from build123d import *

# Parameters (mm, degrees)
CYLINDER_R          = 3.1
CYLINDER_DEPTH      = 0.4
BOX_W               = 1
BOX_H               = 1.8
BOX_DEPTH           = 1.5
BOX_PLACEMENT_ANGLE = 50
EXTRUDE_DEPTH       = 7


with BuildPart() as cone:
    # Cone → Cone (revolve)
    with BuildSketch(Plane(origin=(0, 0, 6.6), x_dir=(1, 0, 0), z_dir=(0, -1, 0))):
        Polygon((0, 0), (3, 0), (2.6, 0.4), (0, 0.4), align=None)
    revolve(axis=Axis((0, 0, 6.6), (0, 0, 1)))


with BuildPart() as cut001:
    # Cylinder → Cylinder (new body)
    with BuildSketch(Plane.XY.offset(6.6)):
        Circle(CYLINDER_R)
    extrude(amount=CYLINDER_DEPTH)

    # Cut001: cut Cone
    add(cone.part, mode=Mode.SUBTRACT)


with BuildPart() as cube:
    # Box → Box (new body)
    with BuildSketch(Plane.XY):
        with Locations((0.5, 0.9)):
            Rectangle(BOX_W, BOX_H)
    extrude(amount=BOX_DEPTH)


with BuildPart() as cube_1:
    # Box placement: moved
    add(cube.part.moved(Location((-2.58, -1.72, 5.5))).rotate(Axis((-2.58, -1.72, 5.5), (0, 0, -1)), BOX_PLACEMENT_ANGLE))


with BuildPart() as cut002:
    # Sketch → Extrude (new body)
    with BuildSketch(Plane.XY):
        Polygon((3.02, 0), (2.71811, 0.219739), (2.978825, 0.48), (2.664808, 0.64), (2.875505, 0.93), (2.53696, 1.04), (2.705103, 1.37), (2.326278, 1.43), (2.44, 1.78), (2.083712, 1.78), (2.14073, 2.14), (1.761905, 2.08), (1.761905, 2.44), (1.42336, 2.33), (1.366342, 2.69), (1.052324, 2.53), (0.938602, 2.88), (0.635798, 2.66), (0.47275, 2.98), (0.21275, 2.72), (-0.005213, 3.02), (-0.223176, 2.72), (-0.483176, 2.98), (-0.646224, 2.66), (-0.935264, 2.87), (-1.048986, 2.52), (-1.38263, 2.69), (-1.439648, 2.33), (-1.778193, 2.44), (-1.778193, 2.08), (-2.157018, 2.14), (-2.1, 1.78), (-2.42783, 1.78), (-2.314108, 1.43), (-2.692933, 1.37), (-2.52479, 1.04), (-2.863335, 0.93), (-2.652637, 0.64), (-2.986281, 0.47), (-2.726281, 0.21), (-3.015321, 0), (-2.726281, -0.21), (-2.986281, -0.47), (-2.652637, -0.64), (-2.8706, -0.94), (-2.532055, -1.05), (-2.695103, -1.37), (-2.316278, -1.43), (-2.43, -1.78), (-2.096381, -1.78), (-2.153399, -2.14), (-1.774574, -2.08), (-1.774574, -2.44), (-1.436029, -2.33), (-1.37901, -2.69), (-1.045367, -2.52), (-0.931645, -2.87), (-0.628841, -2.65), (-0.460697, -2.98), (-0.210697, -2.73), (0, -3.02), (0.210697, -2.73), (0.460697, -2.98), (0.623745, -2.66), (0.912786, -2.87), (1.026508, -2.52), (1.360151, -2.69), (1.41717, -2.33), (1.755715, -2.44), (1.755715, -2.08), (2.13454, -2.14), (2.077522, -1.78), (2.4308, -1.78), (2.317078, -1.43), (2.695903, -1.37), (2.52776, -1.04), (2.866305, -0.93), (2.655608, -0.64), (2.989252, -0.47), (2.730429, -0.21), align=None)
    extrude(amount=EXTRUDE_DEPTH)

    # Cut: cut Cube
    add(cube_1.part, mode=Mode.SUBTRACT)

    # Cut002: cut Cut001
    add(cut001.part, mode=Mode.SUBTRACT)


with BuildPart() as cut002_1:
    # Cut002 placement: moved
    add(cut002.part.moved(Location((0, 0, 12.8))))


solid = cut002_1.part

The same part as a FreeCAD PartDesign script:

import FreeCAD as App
import Part
import Sketcher

V = App.Vector
Q = App.Units.Quantity


def add_polygon(sketch, points):
    """Adds a closed chain of lines whose ends are joined by coincident constraints."""
    first, n = sketch.GeometryCount, len(points)
    for a, b in zip(points, points[1:] + points[:1]):
        sketch.addGeometry(Part.LineSegment(App.Vector(*a, 0), App.Vector(*b, 0)), False)
    for i in range(n):
        sketch.addConstraint(Sketcher.Constraint("Coincident", first + i, 2, first + (i + 1) % n, 1))

doc = App.newDocument("Part")
body = doc.addObject("PartDesign::Body", "Body")

sketch1 = doc.addObject("Sketcher::SketchObject", "Sketch")
body.addObject(sketch1)
sketch1.AttachmentSupport = (doc.XZ_Plane, [""])
sketch1.MapMode = "FlatFace"
add_polygon(sketch1, [(0, 6.6), (3, 6.6), (2.6, 7), (0, 7)])
sketch1.addConstraint([
    Sketcher.Constraint("Horizontal", 0),
    Sketcher.Constraint("Horizontal", 2),
    Sketcher.Constraint("Vertical", 3),
    Sketcher.Constraint("PointOnObject", 2, 2, -2),
    Sketcher.Constraint("DistanceX", 0, 1, 0, 2, 3.0),
    Sketcher.Constraint("Angle", 1, Q("135 deg")),
    Sketcher.Constraint("DistanceX", 2, 2, 2, 1, 2.6),
    Sketcher.Constraint("DistanceY", -1, 1, 1, 2, 7.0),
])
revolution = doc.addObject("PartDesign::Revolution", "Revolution")
body.addObject(revolution)
revolution.Profile = sketch1
revolution.ReferenceAxis = (sketch1, ["V_Axis"])
revolution.Angle = 360
body2 = doc.addObject("PartDesign::Body", "Body001")

sketch2 = doc.addObject("Sketcher::SketchObject", "Sketch001")
body2.addObject(sketch2)
sketch2.AttachmentSupport = (doc.getObject("XY_Plane001"), [""])
sketch2.MapMode = "FlatFace"
sketch2.AttachmentOffset = App.Placement(V(0, 0, 6.6), App.Rotation())
sketch2.addGeometry(Part.Circle(V(0, 0, 0), V(0, 0, 1), 3.1), False)
sketch2.addConstraint([
    Sketcher.Constraint("Coincident", 0, 3, -1, 1),
    Sketcher.Constraint("Diameter", 0, 6.2),
])
pad1 = doc.addObject("PartDesign::Pad", "Pad")
body2.addObject(pad1)
pad1.Profile = sketch2
pad1.Length = 0.4
doc.recompute()

boolean = doc.addObject("PartDesign::Boolean", "Boolean")
body2.addObject(boolean)
boolean.Type = "Cut"
boolean.addObjects([body])
body3 = doc.addObject("PartDesign::Body", "Body002")

sketch3 = doc.addObject("Sketcher::SketchObject", "Sketch002")
body3.addObject(sketch3)
sketch3.AttachmentSupport = (doc.getObject("XY_Plane002"), [""])
sketch3.MapMode = "FlatFace"
add_polygon(sketch3, [(0, 1.8), (0, 0), (1, 0), (1, 1.8)])
sketch3.addConstraint([
    Sketcher.Constraint("Vertical", 0),
    Sketcher.Constraint("Horizontal", 1),
    Sketcher.Constraint("Vertical", 2),
    Sketcher.Constraint("Horizontal", 3),
    Sketcher.Constraint("Coincident", 0, 2, -1, 1),
    Sketcher.Constraint("DistanceX", 1, 1, 1, 2, 1.0),
    Sketcher.Constraint("DistanceY", 0, 2, 0, 1, 1.8),
])
pad2 = doc.addObject("PartDesign::Pad", "Pad001")
body3.addObject(pad2)
pad2.Profile = sketch3
pad2.Length = 1.5
body4 = doc.addObject("PartDesign::Body", "Body003")
doc.recompute()

body3.Placement = App.Placement(V(-2.58, -1.72, 5.5), App.Rotation(V(0, 0, -1), 50))
boolean2 = doc.addObject("PartDesign::Boolean", "Boolean001")
body4.addObject(boolean2)
boolean2.Type = "Fuse"
boolean2.addObjects([body3])
body5 = doc.addObject("PartDesign::Body", "Body004")

sketch4 = doc.addObject("Sketcher::SketchObject", "Sketch003")
body5.addObject(sketch4)
sketch4.AttachmentSupport = (doc.getObject("XY_Plane004"), [""])
sketch4.MapMode = "FlatFace"
add_polygon(sketch4, [(3.02, 0), (2.72, 0.22), (2.98, 0.48), (2.66, 0.64), (2.88, 0.93), (2.54, 1.04), (2.71, 1.37), (2.33, 1.43), (2.44, 1.78), (2.08, 1.78), (2.14, 2.14), (1.76, 2.08), (1.76, 2.44), (1.42, 2.33), (1.37, 2.69), (1.05, 2.53), (0.94, 2.88), (0.64, 2.66), (0.47, 2.98), (0.21, 2.72), (-0.01, 3.02), (-0.22, 2.72), (-0.48, 2.98), (-0.65, 2.66), (-0.94, 2.87), (-1.05, 2.52), (-1.38, 2.69), (-1.44, 2.33), (-1.78, 2.44), (-1.78, 2.08), (-2.16, 2.14), (-2.1, 1.78), (-2.43, 1.78), (-2.31, 1.43), (-2.69, 1.37), (-2.52, 1.04), (-2.86, 0.93), (-2.65, 0.64), (-2.99, 0.47), (-2.73, 0.21), (-3.02, 0), (-2.73, -0.21), (-2.99, -0.47), (-2.65, -0.64), (-2.87, -0.94), (-2.53, -1.05), (-2.7, -1.37), (-2.32, -1.43), (-2.43, -1.78), (-2.1, -1.78), (-2.15, -2.14), (-1.77, -2.08), (-1.77, -2.44), (-1.44, -2.33), (-1.38, -2.69), (-1.05, -2.52), (-0.93, -2.87), (-0.63, -2.65), (-0.46, -2.98), (-0.21, -2.73), (0, -3.02), (0.21, -2.73), (0.46, -2.98), (0.62, -2.66), (0.91, -2.87), (1.03, -2.52), (1.36, -2.69), (1.42, -2.33), (1.76, -2.44), (1.76, -2.08), (2.13, -2.14), (2.08, -1.78), (2.43, -1.78), (2.32, -1.43), (2.7, -1.37), (2.53, -1.04), (2.87, -0.93), (2.66, -0.64), (2.99, -0.47), (2.73, -0.21)])
sketch4.addConstraint([
    Sketcher.Constraint("Horizontal", 8),
    Sketcher.Constraint("Vertical", 11),
    Sketcher.Constraint("Vertical", 28),
    Sketcher.Constraint("Horizontal", 31),
    Sketcher.Constraint("Horizontal", 48),
    Sketcher.Constraint("Vertical", 51),
    Sketcher.Constraint("Vertical", 68),
    Sketcher.Constraint("Horizontal", 71),
    Sketcher.Constraint("Symmetric", 58, 2, 60, 2, -2),
    Sketcher.Constraint("Symmetric", 57, 2, 61, 2, -2),
    Sketcher.Constraint("Symmetric", 38, 2, 40, 2, -1),
    Sketcher.Constraint("Symmetric", 37, 2, 41, 2, -1),
    Sketcher.Constraint("Symmetric", 36, 2, 42, 2, -1),
    Sketcher.Constraint("PointOnObject", 39, 2, -1),
    Sketcher.Constraint("PointOnObject", 59, 2, -2),
    Sketcher.Constraint("PointOnObject", 79, 2, -1),
    Sketcher.Constraint("Perpendicular", 2, 5),
    Sketcher.Constraint("Perpendicular", 4, 7),
    Sketcher.Constraint("Perpendicular", 6, 9),
    Sketcher.Constraint("Perpendicular", 10, 13),
    Sketcher.Constraint("Perpendicular", 12, 15),
    Sketcher.Constraint("Perpendicular", 14, 17),
    Sketcher.Constraint("Perpendicular", 16, 19),
    Sketcher.Constraint("Parallel", 3, 20),
    Sketcher.Constraint("Perpendicular", 18, 21),
    Sketcher.Constraint("Parallel", 5, 22),
    Sketcher.Constraint("Perpendicular", 20, 23),
    Sketcher.Constraint("Parallel", 7, 24),
    Sketcher.Constraint("Perpendicular", 22, 25),
    Sketcher.Constraint("Parallel", 9, 26),
    Sketcher.Constraint("Perpendicular", 24, 27),
    Sketcher.Constraint("Perpendicular", 26, 29),
    Sketcher.Constraint("Parallel", 13, 30),
    Sketcher.Constraint("Parallel", 15, 32),
    Sketcher.Constraint("Perpendicular", 30, 33),
    Sketcher.Constraint("Parallel", 17, 34),
    Sketcher.Constraint("Perpendicular", 32, 35),
    Sketcher.Constraint("Parallel", 19, 36),
    Sketcher.Constraint("Perpendicular", 34, 37),
    Sketcher.Constraint("Parallel", 21, 38),
    Sketcher.Constraint("Perpendicular", 36, 39),
    Sketcher.Constraint("Parallel", 23, 40),
    Sketcher.Constraint("Perpendicular", 38, 41),
    Sketcher.Constraint("Parallel", 25, 42),
    Sketcher.Constraint("Perpendicular", 40, 43),
    Sketcher.Constraint("Parallel", 27, 44),
    Sketcher.Constraint("Perpendicular", 42, 45),
    Sketcher.Constraint("Parallel", 29, 46),
    Sketcher.Constraint("Perpendicular", 44, 47),
    Sketcher.Constraint("Perpendicular", 46, 49),
    Sketcher.Constraint("Parallel", 33, 50),
    Sketcher.Constraint("Parallel", 35, 52),
    Sketcher.Constraint("Perpendicular", 50, 53),
    Sketcher.Constraint("Parallel", 37, 54),
    Sketcher.Constraint("Perpendicular", 52, 55),
    Sketcher.Constraint("Parallel", 39, 56),
    Sketcher.Constraint("Perpendicular", 54, 57),
    Sketcher.Constraint("Parallel", 41, 58),
    Sketcher.Constraint("Perpendicular", 56, 59),
    Sketcher.Constraint("Parallel", 45, 62),
    Sketcher.Constraint("Perpendicular", 60, 63),
    Sketcher.Constraint("Parallel", 47, 64),
    Sketcher.Constraint("Perpendicular", 62, 65),
    Sketcher.Constraint("Perpendicular", 46, 66),
    Sketcher.Constraint("Perpendicular", 64, 67),
    Sketcher.Constraint("Perpendicular", 66, 69),
    Sketcher.Constraint("Perpendicular", 50, 70),
    Sketcher.Constraint("Parallel", 55, 72),
    Sketcher.Constraint("Perpendicular", 70, 73),
    Sketcher.Constraint("Perpendicular", 54, 74),
    Sketcher.Constraint("Perpendicular", 72, 75),
    Sketcher.Constraint("Parallel", 59, 76),
    Sketcher.Constraint("Perpendicular", 74, 77),
    Sketcher.Constraint("Horizontal", 18, 2, 20, 2),
    Sketcher.Constraint("Horizontal", 17, 2, 21, 2),
    Sketcher.Constraint("Horizontal", 16, 2, 22, 2),
    Sketcher.Constraint("Horizontal", 13, 2, 25, 2),
    Sketcher.Constraint("Horizontal", 12, 2, 26, 2),
    Sketcher.Constraint("Horizontal", 11, 2, 27, 2),
    Sketcher.Constraint("Horizontal", 10, 2, 28, 2),
    Sketcher.Constraint("Horizontal", 9, 2, 29, 2),
    Sketcher.Constraint("Horizontal", 8, 2, 30, 2),
    Sketcher.Constraint("Horizontal", 6, 2, 32, 2),
    Sketcher.Constraint("Horizontal", 5, 2, 33, 2),
    Sketcher.Constraint("Horizontal", 4, 2, 34, 2),
    Sketcher.Constraint("Horizontal", 3, 2, 35, 2),
    Sketcher.Constraint("Horizontal", 2, 2, 36, 2),
    Sketcher.Constraint("Horizontal", 55, 2, 63, 2),
    Sketcher.Constraint("Horizontal", 54, 2, 64, 2),
    Sketcher.Constraint("Horizontal", 53, 2, 65, 2),
    Sketcher.Constraint("Horizontal", 52, 2, 66, 2),
    Sketcher.Constraint("Horizontal", 51, 2, 67, 2),
    Sketcher.Constraint("Horizontal", 50, 2, 68, 2),
    Sketcher.Constraint("Horizontal", 49, 2, 69, 2),
    Sketcher.Constraint("Horizontal", 48, 2, 70, 2),
    Sketcher.Constraint("Horizontal", 46, 2, 72, 2),
    Sketcher.Constraint("Horizontal", 45, 2, 73, 2),
    Sketcher.Constraint("Horizontal", 42, 2, 76, 2),
    Sketcher.Constraint("Horizontal", 41, 2, 77, 2),
    Sketcher.Constraint("Horizontal", 40, 2, 78, 2),
    Sketcher.Constraint("Equal", 28, 51),
    Sketcher.Constraint("Equal", 6, 10),
    Sketcher.Constraint("Equal", 4, 12),
    Sketcher.Constraint("Equal", 9, 13),
    Sketcher.Constraint("Equal", 2, 14),
    Sketcher.Constraint("Equal", 7, 15),
    Sketcher.Constraint("Equal", 15, 24),
    Sketcher.Constraint("Equal", 13, 26),
    Sketcher.Constraint("Equal", 12, 27),
    Sketcher.Constraint("Equal", 25, 37),
    Sketcher.Constraint("Equal", 21, 38),
    Sketcher.Constraint("Equal", 23, 39),
    Sketcher.Constraint("Equal", 20, 43),
    Sketcher.Constraint("Equal", 35, 44),
    Sketcher.Constraint("Equal", 22, 45),
    Sketcher.Constraint("Equal", 33, 46),
    Sketcher.Constraint("Equal", 32, 47),
    Sketcher.Constraint("Equal", 30, 49),
    Sketcher.Constraint("Equal", 46, 50),
    Sketcher.Constraint("Equal", 44, 52),
    Sketcher.Constraint("Equal", 49, 53),
    Sketcher.Constraint("Equal", 42, 54),
    Sketcher.Constraint("Equal", 47, 55),
    Sketcher.Constraint("Equal", 16, 56),
    Sketcher.Constraint("Equal", 34, 57),
    Sketcher.Constraint("Equal", 36, 59),
    Sketcher.Constraint("Equal", 45, 62),
    Sketcher.Constraint("Equal", 40, 63),
    Sketcher.Constraint("Equal", 57, 74),
    Sketcher.Constraint("Equal", 67, 75),
    Sketcher.Constraint("Equal", 60, 76),
    Sketcher.Constraint("Angle", 4, Q("161.999991 deg")),
    Sketcher.Constraint("Angle", 6, Q("170.999998 deg")),
    Sketcher.Constraint("Angle", 16, Q("-143.999998 deg")),
    Sketcher.Constraint("Angle", 25, Q("153.000015 deg")),
    Sketcher.Constraint("DistanceY", 11, 1, 11, 2, 0.36),
    Sketcher.Constraint("DistanceX", 30, 2, -1, 1, 2.1),
    Sketcher.Constraint("Angle", 78, Q("134.870019 deg")),
    Sketcher.Constraint("DistanceY", -1, 1, 1, 2, 0.48),
    Sketcher.Constraint("DistanceY", -1, 1, 2, 2, 0.64),
    Sketcher.Constraint("DistanceY", -1, 1, 3, 2, 0.93),
    Sketcher.Constraint("DistanceY", -1, 1, 4, 2, 1.04),
    Sketcher.Constraint("DistanceY", -1, 1, 5, 2, 1.37),
    Sketcher.Constraint("DistanceY", -1, 1, 6, 2, 1.43),
    Sketcher.Constraint("DistanceX", -1, 1, 7, 2, 2.44),
    Sketcher.Constraint("DistanceY", -1, 1, 7, 2, 1.78),
    Sketcher.Constraint("DistanceY", -1, 1, 9, 2, 2.14),
    Sketcher.Constraint("DistanceY", -1, 1, 16, 2, 2.66),
    Sketcher.Constraint("DistanceY", -1, 1, 17, 2, 2.98),
    Sketcher.Constraint("DistanceX", 47, 2, -1, 1, 2.43),
    Sketcher.Constraint("DistanceY", 58, 2, -1, 1, 2.73),
    Sketcher.Constraint("DistanceX", -1, 1, 79, 2, 3.02),
    Sketcher.Constraint("DistanceX", -1, 1, 71, 2, 2.4308),
    Sketcher.Constraint("DistanceX", -1, 1, 0, 2, 2.71811),
    Sketcher.Constraint("DistanceY", -1, 1, 0, 2, 0.219739),
])
pad3 = doc.addObject("PartDesign::Pad", "Pad002")
body5.addObject(pad3)
pad3.Profile = sketch4
pad3.Length = 7
doc.recompute()

boolean3 = doc.addObject("PartDesign::Boolean", "Boolean002")
body5.addObject(boolean3)
boolean3.Type = "Cut"
boolean3.addObjects([body4])
doc.recompute()

boolean4 = doc.addObject("PartDesign::Boolean", "Boolean003")
body5.addObject(boolean4)
boolean4.Type = "Cut"
boolean4.addObjects([body2])
body6 = doc.addObject("PartDesign::Body", "Body005")
doc.recompute()

body5.Placement = App.Placement(V(0, 0, 12.8), App.Rotation(V(0, 0, 1), 0))
boolean5 = doc.addObject("PartDesign::Boolean", "Boolean004")
body6.addObject(boolean5)
boolean5.Type = "Fuse"
boolean5.addObjects([body5])

doc.recompute()
